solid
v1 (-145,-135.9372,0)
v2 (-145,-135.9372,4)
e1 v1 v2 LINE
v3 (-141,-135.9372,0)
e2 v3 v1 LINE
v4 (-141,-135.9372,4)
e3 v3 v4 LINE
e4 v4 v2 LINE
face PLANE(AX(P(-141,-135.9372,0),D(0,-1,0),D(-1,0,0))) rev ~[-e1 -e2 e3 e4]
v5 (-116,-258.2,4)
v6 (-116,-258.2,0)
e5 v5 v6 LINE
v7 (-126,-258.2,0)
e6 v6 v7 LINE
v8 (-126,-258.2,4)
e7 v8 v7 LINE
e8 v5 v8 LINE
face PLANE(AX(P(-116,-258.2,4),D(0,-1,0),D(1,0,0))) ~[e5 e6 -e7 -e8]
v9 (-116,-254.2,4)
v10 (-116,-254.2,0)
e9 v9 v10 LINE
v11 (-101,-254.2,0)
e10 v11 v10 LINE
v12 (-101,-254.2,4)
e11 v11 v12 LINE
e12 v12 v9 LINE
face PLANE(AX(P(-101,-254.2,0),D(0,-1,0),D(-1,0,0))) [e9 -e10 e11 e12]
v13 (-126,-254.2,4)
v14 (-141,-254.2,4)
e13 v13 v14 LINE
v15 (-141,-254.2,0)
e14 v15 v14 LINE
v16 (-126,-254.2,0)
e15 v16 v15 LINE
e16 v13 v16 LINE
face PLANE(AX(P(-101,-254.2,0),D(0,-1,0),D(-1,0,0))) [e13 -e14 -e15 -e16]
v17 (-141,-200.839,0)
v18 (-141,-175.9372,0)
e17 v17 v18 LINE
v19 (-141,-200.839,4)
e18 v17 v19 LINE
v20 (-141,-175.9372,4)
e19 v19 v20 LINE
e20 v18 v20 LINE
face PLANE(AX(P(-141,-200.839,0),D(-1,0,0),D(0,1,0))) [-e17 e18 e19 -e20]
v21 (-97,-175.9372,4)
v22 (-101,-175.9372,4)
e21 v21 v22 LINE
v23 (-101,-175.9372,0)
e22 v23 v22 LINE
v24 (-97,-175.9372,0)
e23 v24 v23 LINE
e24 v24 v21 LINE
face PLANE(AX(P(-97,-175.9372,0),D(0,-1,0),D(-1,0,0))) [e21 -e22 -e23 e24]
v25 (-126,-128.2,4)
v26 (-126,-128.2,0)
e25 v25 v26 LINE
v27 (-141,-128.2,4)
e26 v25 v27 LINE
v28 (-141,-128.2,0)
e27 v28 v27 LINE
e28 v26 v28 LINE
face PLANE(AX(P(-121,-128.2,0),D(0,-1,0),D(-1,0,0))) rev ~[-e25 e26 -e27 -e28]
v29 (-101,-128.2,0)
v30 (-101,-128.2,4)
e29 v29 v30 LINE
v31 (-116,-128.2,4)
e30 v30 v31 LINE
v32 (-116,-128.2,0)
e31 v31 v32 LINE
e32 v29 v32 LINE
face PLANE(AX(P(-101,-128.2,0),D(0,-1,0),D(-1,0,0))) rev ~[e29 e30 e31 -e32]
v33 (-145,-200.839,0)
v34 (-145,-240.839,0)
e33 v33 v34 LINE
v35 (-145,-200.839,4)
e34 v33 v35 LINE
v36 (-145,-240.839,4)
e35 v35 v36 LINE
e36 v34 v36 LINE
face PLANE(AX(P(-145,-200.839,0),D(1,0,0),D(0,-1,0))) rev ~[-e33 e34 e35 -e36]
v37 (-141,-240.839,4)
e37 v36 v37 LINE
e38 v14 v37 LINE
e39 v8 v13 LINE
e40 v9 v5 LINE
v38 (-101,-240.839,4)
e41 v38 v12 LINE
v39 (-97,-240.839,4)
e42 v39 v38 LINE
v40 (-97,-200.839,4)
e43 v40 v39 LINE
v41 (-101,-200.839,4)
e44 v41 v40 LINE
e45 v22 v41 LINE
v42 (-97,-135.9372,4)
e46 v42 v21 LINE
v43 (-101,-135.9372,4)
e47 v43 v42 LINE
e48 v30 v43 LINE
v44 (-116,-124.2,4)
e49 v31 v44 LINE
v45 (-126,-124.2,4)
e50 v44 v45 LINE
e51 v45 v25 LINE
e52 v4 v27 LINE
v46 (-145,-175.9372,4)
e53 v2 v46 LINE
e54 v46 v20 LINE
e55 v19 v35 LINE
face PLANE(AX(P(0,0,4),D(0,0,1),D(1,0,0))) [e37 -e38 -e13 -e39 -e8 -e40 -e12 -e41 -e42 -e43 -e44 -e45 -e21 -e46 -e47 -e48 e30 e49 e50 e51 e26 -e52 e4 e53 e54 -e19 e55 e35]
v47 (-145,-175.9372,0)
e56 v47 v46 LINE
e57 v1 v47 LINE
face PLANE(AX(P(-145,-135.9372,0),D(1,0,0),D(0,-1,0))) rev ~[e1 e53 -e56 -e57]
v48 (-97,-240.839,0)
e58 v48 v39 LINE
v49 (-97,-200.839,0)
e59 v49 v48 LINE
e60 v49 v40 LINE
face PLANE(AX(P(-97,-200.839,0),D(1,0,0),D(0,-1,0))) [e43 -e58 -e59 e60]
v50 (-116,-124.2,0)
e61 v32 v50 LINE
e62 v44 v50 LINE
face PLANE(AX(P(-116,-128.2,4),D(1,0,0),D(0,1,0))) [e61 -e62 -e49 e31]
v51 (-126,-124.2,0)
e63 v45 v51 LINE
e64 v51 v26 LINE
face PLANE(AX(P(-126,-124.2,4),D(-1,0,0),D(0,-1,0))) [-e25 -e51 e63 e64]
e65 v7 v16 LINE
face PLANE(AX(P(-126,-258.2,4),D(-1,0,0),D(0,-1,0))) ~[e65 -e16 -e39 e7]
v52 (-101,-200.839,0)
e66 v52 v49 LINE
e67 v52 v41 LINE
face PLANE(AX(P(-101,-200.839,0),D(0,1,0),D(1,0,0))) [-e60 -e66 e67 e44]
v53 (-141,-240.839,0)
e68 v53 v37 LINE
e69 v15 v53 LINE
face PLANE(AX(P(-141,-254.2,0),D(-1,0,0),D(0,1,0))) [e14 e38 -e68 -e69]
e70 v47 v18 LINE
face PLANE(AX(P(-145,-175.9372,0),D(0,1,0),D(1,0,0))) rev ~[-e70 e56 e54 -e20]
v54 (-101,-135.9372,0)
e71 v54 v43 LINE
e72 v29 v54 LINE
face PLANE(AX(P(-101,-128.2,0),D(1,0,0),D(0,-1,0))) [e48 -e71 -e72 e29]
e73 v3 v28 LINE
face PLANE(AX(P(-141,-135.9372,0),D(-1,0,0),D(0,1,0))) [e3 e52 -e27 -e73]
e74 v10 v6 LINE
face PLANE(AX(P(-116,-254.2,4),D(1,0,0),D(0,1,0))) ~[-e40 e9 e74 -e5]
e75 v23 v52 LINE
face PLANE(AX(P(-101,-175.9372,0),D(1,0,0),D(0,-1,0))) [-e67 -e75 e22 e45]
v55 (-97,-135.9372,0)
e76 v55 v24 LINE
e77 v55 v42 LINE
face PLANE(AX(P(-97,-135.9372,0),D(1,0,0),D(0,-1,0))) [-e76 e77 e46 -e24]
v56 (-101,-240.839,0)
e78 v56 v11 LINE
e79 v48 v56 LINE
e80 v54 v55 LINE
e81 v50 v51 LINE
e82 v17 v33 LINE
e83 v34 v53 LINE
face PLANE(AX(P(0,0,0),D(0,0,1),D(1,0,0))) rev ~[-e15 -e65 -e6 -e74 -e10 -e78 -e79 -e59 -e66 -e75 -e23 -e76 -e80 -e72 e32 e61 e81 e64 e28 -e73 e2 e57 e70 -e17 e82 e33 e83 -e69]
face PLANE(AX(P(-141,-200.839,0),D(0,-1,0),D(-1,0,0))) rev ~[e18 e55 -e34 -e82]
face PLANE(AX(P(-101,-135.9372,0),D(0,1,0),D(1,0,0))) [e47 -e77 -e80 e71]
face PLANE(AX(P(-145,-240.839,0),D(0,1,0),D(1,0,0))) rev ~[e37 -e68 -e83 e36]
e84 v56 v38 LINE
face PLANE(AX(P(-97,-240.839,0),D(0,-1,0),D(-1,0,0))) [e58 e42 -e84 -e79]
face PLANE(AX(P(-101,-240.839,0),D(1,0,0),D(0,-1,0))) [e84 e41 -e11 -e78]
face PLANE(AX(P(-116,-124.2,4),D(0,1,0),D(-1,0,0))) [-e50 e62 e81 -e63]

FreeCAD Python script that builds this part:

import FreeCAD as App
import Part
import Sketcher

V = App.Vector
Q = App.Units.Quantity


def add_polygon(sketch, points):
    """Adds a closed chain of lines whose ends are joined by coincident constraints."""
    first, n = sketch.GeometryCount, len(points)
    for a, b in zip(points, points[1:] + points[:1]):
        sketch.addGeometry(Part.LineSegment(App.Vector(*a, 0), App.Vector(*b, 0)), False)
    for i in range(n):
        sketch.addConstraint(Sketcher.Constraint("Coincident", first + i, 2, first + (i + 1) % n, 1))

doc = App.newDocument("Part")
params = doc.addObject("Spreadsheet::Sheet", "Params")
for row, (alias, value) in enumerate([
    ("sketch1_width", "4 mm"),
    ("sketch1_width2", "40 mm"),
    ("pad1_length", "4 mm"),
    ("sketch2_width", "10 mm"),
    ("sketch2_height", "4 mm"),
    ("pad2_length", "4 mm"),
], start=1):
    params.set(f"A{row}", alias)
    params.set(f"B{row}", "=" + value)
    params.setAlias(f"B{row}", alias)

body = doc.addObject("PartDesign::Body", "Body")

# Sketch on XY plane
sketch1 = body.newObject("Sketcher::SketchObject", "Sketch")
sketch1.AttachmentSupport = (doc.getObject("XY_Plane"), [""])
sketch1.MapMode = "FlatFace"
add_polygon(sketch1, [(-97, -200.8), (-101, -200.8), (-101, -175.9), (-97, -175.9), (-97, -135.9), (-101, -135.9), (-101, -128.2), (-141, -128.2), (-141, -135.9), (-145, -135.9), (-145, -175.9), (-141, -175.9), (-141, -200.8), (-145, -200.8), (-145, -240.8), (-141, -240.8), (-141, -254.2), (-101, -254.2), (-101, -240.8), (-97, -240.8)])  # lines 0-19
sketch1.addConstraint([
    Sketcher.Constraint("Horizontal", 0),
    Sketcher.Constraint("Vertical", 1),
    Sketcher.Constraint("Horizontal", 2),
    Sketcher.Constraint("Vertical", 3),
    Sketcher.Constraint("Horizontal", 4),
    Sketcher.Constraint("Vertical", 5),
    Sketcher.Constraint("Horizontal", 6),
    Sketcher.Constraint("Vertical", 7),
    Sketcher.Constraint("Horizontal", 8),
    Sketcher.Constraint("Vertical", 9),
    Sketcher.Constraint("Horizontal", 10),
    Sketcher.Constraint("Vertical", 11),
    Sketcher.Constraint("Horizontal", 12),
    Sketcher.Constraint("Vertical", 13),
    Sketcher.Constraint("Horizontal", 14),
    Sketcher.Constraint("Vertical", 15),
    Sketcher.Constraint("Horizontal", 16),
    Sketcher.Constraint("Vertical", 17),
    Sketcher.Constraint("Horizontal", 18),
    Sketcher.Constraint("Vertical", 19),
    Sketcher.Constraint("Horizontal", 4, 2, 7, 2),
    Sketcher.Constraint("Horizontal", 2, 2, 9, 2),
    Sketcher.Constraint("Horizontal", 0, 2, 11, 2),
    Sketcher.Constraint("Horizontal", 14, 2, 17, 2),
    Sketcher.Constraint("Vertical", 1, 2, 4, 2),
    Sketcher.Constraint("Vertical", 7, 2, 10, 2),
    Sketcher.Constraint("Vertical", 9, 2, 12, 2),
    Sketcher.Constraint("Vertical", 11, 2, 14, 2),
    Sketcher.Constraint("Vertical", 5, 2, 16, 2),
    Sketcher.Constraint("Vertical", 3, 2, 18, 2),
    Sketcher.Constraint("Equal", 4, 8),
    Sketcher.Constraint("Equal", 16, 3),
    Sketcher.Constraint("Equal", 9, 13),
    Sketcher.Constraint("DistanceX", 0, 2, 0, 1, Q("4 mm")),
    Sketcher.Constraint("DistanceX", 6, 2, 6, 1, Q("40 mm")),
    Sketcher.Constraint("DistanceX", 0, 2, -1, 1, Q("101 mm")),
    Sketcher.Constraint("DistanceY", 5, 2, -1, 1, Q("128.2 mm")),
    Sketcher.Constraint("DistanceY", 15, 2, -1, 1, Q("254.2 mm")),
    Sketcher.Constraint("DistanceY", 15, 2, 15, 1, Q("13.361 mm")),
    Sketcher.Constraint("DistanceY", 1, 1, 1, 2, Q("24.9018 mm")),
])
sketch1.setExpression("Constraints[53]", "Params.sketch1_width")
sketch1.setExpression("Constraints[54]", "Params.sketch1_width2")
pad1 = body.newObject("PartDesign::Pad", "Pad")
pad1.Profile = sketch1
pad1.setExpression("Length", "Params.pad1_length")

# Sketch on XY plane
sketch2 = body.newObject("Sketcher::SketchObject", "Sketch001")
sketch2.AttachmentSupport = (doc.getObject("XY_Plane"), [""])
sketch2.MapMode = "FlatFace"
sketch2.AttachmentOffset = App.Placement(V(0, 0, 4), App.Rotation())
add_polygon(sketch2, [(-126, -128.2), (-116, -128.2), (-116, -124.2), (-126, -124.2)])  # lines 0-3
sketch2.addConstraint([
    Sketcher.Constraint("Horizontal", 0),
    Sketcher.Constraint("Vertical", 1),
    Sketcher.Constraint("Horizontal", 2),
    Sketcher.Constraint("Vertical", 3),
    Sketcher.Constraint("DistanceX", 0, 1, 0, 2, Q("10 mm")),
    Sketcher.Constraint("DistanceY", 1, 1, 1, 2, Q("4 mm")),
    Sketcher.Constraint("DistanceX", 0, 2, -1, 1, Q("116 mm")),
    Sketcher.Constraint("DistanceY", 0, 2, -1, 1, Q("128.2 mm")),
])
sketch2.setExpression("Constraints[8]", "Params.sketch2_width")
sketch2.setExpression("Constraints[9]", "Params.sketch2_height")
pad2 = body.newObject("PartDesign::Pad", "Pad001")
pad2.Profile = sketch2
pad2.setExpression("Length", "Params.pad2_length")
pad2.Reversed = True
doc.recompute()

datumplane = body.newObject("PartDesign::Plane", "DatumPlane")
datumplane.AttachmentSupport = (doc.getObject("XZ_Plane"), [""])
datumplane.MapMode = "FlatFace"
datumplane.AttachmentOffset = App.Placement(V(0, 0, 191.2), App.Rotation())
mirrored = body.newObject("PartDesign::Mirrored", "Mirrored")
mirrored.Originals = [pad2]
mirrored.MirrorPlane = (datumplane, [""])
body.Tip = mirrored

doc.recompute()
